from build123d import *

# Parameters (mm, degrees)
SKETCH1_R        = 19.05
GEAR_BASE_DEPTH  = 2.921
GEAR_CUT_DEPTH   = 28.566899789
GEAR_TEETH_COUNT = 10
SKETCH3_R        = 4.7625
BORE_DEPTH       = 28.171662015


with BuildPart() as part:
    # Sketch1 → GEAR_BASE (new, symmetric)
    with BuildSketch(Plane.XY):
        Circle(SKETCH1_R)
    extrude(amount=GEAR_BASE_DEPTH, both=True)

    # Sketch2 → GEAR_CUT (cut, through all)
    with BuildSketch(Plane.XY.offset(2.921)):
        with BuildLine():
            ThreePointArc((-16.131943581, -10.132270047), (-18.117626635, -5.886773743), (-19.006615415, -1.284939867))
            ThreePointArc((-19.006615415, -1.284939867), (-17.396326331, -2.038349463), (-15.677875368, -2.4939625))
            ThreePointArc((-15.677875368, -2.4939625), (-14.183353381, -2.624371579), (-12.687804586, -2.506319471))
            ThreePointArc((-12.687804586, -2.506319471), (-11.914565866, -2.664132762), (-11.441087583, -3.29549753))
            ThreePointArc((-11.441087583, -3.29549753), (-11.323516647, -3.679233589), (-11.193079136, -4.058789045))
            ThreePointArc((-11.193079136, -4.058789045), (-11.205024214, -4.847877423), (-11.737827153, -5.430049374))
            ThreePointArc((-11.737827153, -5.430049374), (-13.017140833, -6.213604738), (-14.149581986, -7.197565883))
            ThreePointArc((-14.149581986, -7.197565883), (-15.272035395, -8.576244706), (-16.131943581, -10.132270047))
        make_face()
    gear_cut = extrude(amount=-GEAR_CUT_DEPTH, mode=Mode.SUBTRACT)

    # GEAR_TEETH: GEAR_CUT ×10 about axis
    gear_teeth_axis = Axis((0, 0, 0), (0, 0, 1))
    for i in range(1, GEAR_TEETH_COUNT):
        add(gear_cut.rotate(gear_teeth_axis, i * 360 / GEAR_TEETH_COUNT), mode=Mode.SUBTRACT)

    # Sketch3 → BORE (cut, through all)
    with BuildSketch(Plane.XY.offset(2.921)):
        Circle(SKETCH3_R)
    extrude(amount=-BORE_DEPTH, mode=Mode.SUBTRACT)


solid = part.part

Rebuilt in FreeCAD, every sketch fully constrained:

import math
import FreeCAD as App
import Part
import Sketcher
Q = App.Units.Quantity

doc = App.newDocument("Part")
body = doc.addObject("PartDesign::Body", "Body")

sketch1 = body.newObject("Sketcher::SketchObject", "Sketch")
sketch1.AttachmentSupport = (doc.getObject("XY_Plane"), [""])
sketch1.MapMode = "FlatFace"
sketch1.addGeometry(Part.Circle(App.Vector(0, 0, 0), App.Vector(0, 0, 1), 19.05), False)
sketch1.addConstraint(Sketcher.Constraint("Coincident", 0, 3, -1, 1))
sketch1.addConstraint(Sketcher.Constraint("Diameter", 0, Q("1.5 in")))
pad1 = body.newObject("PartDesign::Pad", "Pad")
pad1.Profile = sketch1
pad1.Length = Q("0.23 in")
pad1.Midplane = True

sketch2 = body.newObject("Sketcher::SketchObject", "Sketch001")
sketch2.AttachmentSupport = (doc.getObject("XY_Plane"), [""])
sketch2.MapMode = "FlatFace"
sketch2.AttachmentOffset = App.Placement(App.Vector(0, 0, 0.115 * 25.4), App.Rotation())
sketch2.addGeometry(Part.ArcOfCircle(Part.Circle(App.Vector(0, 0, 0), App.Vector(0, 0, 1), 19.05), math.radians(-176.132411), math.radians(-147.867589)), False)
sketch2.addGeometry(Part.ArcOfCircle(Part.Circle(App.Vector(-7.005442, -14.160241, 0), App.Vector(0, 0, 1), 9.97585), math.radians(135.736991), math.radians(156.185789)), False)
sketch2.addGeometry(Part.ArcOfCircle(Part.Circle(App.Vector(-7.662691, -13.519686, 0), App.Vector(0, 0, 1), 9.058088), math.radians(116.736575), math.radians(135.736991)), False)
sketch2.addGeometry(Part.ArcOfCircle(Part.Circle(App.Vector(-12.237767, -4.437609, 0), App.Vector(0, 0, 1), 1.11125), math.radians(-63.263425), math.radians(19.931452)), False)
sketch2.addGeometry(Part.ArcOfCircle(Part.Circle(App.Vector(0, 0, 0), App.Vector(0, 0, 1), 11.90625), math.radians(-163.931452), math.radians(-160.068548)), False)
sketch2.addGeometry(Part.ArcOfCircle(Part.Circle(App.Vector(-12.508922, -3.603077, 0), App.Vector(0, 0, 1), 1.11125), math.radians(16.068548), math.radians(99.263425)), False)
sketch2.addGeometry(Part.ArcOfCircle(Part.Circle(App.Vector(-14.14592, 6.433639, 0), App.Vector(0, 0, 1), 9.058088), math.radians(-99.736991), math.radians(-80.736575)), False)
sketch2.addGeometry(Part.ArcOfCircle(Part.Circle(App.Vector(-13.990702, 7.33818, 0), App.Vector(0, 0, 1), 9.97585), math.radians(-120.185789), math.radians(-99.736991)), False)
sketch2.addConstraint(Sketcher.Constraint("Coincident", 0, 2, 1, 2))
sketch2.addConstraint(Sketcher.Constraint("Tangent", 1, 1, 2, 2))
sketch2.addConstraint(Sketcher.Constraint("Tangent", 2, 1, 3, 1))
sketch2.addConstraint(Sketcher.Constraint("Tangent", 3, 2, 4, 2))
sketch2.addConstraint(Sketcher.Constraint("Tangent", 4, 1, 5, 1))
sketch2.addConstraint(Sketcher.Constraint("Tangent", 5, 2, 6, 2))
sketch2.addConstraint(Sketcher.Constraint("Tangent", 6, 1, 7, 2))
sketch2.addConstraint(Sketcher.Constraint("Coincident", 7, 1, 0, 1))
sketch2.addConstraint(Sketcher.Constraint("Coincident", 0, 3, -1, 1))
sketch2.addConstraint(Sketcher.Constraint("Coincident", 4, 3, -1, 1))
sketch2.addConstraint(Sketcher.Constraint("Equal", 3, 5))
sketch2.addConstraint(Sketcher.Constraint("Equal", 2, 6))
sketch2.addConstraint(Sketcher.Constraint("Equal", 1, 7))
sketch2.addConstraint(Sketcher.Constraint("Radius", 0, Q("0.75 in")))
sketch2.addConstraint(Sketcher.Constraint("Radius", 4, Q("0.46875 in")))
sketch2.addConstraint(Sketcher.Constraint("Radius", 1, 9.97585))
sketch2.addConstraint(Sketcher.Constraint("Radius", 3, 1.11125))
sketch2.addConstraint(Sketcher.Constraint("Radius", 2, 9.058088))
sketch2.addConstraint(Sketcher.Constraint("DistanceX", 0, 2, 1, 3, 9.126502))
sketch2.addConstraint(Sketcher.Constraint("DistanceX", 1, 3, -1, 1, 7.005442))
sketch2.addConstraint(Sketcher.Constraint("DistanceX", 2, 3, -1, 1, 7.662691))
sketch2.addConstraint(Sketcher.Constraint("DistanceX", 6, 3, -1, 1, 14.14592))
sketch2.addConstraint(Sketcher.Constraint("DistanceY", -1, 1, 6, 3, 6.433639))
sketch2.addConstraint(Sketcher.Constraint("DistanceY", -1, 1, 7, 3, 7.33818))
pocket1 = body.newObject("PartDesign::Pocket", "Pocket")
pocket1.Profile = sketch2
pocket1.Type = "ThroughAll"
doc.recompute()

polarpattern = body.newObject("PartDesign::PolarPattern", "PolarPattern")
polarpattern.Originals = [pocket1]
polarpattern.Axis = (doc.getObject("Z_Axis"), [""])
polarpattern.Angle = 360
polarpattern.Occurrences = 10
body.Tip = polarpattern

sketch3 = body.newObject("Sketcher::SketchObject", "Sketch002")
sketch3.AttachmentSupport = (doc.getObject("XY_Plane"), [""])
sketch3.MapMode = "FlatFace"
sketch3.AttachmentOffset = App.Placement(App.Vector(0, 0, 0.115 * 25.4), App.Rotation())
sketch3.addGeometry(Part.Circle(App.Vector(0, 0, 0), App.Vector(0, 0, 1), 4.7625), False)
sketch3.addConstraint(Sketcher.Constraint("Coincident", 0, 3, -1, 1))
sketch3.addConstraint(Sketcher.Constraint("Diameter", 0, Q("0.375 in")))
pocket2 = body.newObject("PartDesign::Pocket", "Pocket001")
pocket2.Profile = sketch3
pocket2.Type = "ThroughAll"

doc.recompute()
